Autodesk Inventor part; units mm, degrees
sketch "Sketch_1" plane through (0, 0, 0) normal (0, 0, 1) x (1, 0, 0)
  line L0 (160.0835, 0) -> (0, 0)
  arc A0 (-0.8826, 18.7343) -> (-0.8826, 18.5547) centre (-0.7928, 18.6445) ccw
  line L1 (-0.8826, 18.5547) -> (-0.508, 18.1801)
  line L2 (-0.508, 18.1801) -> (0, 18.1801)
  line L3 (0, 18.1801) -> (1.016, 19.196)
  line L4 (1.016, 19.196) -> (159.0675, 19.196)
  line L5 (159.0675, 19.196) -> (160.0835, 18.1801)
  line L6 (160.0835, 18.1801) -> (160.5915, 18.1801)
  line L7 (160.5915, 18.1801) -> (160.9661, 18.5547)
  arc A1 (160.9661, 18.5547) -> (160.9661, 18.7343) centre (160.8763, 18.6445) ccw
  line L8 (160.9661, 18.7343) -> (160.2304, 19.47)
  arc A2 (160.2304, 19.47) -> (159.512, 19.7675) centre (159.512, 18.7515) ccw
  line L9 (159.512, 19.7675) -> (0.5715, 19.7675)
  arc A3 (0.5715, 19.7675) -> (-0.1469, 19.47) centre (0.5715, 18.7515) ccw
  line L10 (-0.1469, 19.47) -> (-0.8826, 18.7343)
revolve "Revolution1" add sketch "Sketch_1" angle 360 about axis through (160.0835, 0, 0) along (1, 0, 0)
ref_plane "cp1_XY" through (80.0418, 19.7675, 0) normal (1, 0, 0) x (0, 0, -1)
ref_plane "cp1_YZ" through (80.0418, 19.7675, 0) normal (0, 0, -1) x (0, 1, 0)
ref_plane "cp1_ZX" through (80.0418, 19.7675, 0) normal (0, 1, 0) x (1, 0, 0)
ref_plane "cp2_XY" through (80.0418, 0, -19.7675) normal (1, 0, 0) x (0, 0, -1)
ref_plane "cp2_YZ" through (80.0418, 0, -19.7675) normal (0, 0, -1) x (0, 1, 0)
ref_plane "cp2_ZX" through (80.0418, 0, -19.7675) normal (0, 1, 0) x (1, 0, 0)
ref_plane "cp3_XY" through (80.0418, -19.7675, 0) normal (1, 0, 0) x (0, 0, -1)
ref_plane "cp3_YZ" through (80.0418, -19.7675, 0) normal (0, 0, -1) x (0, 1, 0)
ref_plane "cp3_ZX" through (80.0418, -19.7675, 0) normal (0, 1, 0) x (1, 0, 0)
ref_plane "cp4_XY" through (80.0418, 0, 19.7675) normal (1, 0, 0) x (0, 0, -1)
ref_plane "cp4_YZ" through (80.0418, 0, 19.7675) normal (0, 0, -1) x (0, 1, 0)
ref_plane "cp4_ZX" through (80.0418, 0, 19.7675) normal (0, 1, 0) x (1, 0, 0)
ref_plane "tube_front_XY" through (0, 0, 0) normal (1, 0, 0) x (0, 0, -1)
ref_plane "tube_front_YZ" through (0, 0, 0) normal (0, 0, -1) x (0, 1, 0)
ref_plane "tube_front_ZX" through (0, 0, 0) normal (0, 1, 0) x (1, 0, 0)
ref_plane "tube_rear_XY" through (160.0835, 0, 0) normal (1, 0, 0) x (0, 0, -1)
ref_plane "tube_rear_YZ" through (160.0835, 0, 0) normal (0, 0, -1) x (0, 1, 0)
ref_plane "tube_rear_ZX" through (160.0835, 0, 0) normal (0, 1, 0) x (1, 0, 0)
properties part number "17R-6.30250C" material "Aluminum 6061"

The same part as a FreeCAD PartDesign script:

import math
import FreeCAD as App
import Part
import Sketcher

V = App.Vector
Q = App.Units.Quantity

doc = App.newDocument("Part")
body = doc.addObject("PartDesign::Body", "Body")

# Sketch on XY plane
sketch1 = doc.addObject("Sketcher::SketchObject", "Sketch")
body.addObject(sketch1)
sketch1.AttachmentSupport = (doc.XY_Plane, [""])
sketch1.MapMode = "FlatFace"
sketch1.addGeometry(Part.LineSegment(V(-0.1469, 19.47, 0), V(-0.8826, 18.7343, 0)), False)
sketch1.addGeometry(Part.ArcOfCircle(Part.Circle(V(-0.7928, 18.6445, 0), V(0, 0, 1), 0.126996), math.radians(135), math.radians(225)), False)
sketch1.addGeometry(Part.LineSegment(V(-0.8826, 18.5547, 0), V(-0.508, 18.1801, 0)), False)
sketch1.addGeometry(Part.LineSegment(V(-0.508, 18.1801, 0), V(0, 18.1801, 0)), False)
sketch1.addGeometry(Part.LineSegment(V(0, 18.1801, 0), V(1.016, 19.196, 0)), False)
sketch1.addGeometry(Part.LineSegment(V(1.016, 19.196, 0), V(159.0675, 19.196, 0)), False)
sketch1.addGeometry(Part.LineSegment(V(159.0675, 19.196, 0), V(160.0835, 18.1801, 0)), False)
sketch1.addGeometry(Part.LineSegment(V(160.0835, 18.1801, 0), V(160.5915, 18.1801, 0)), False)
sketch1.addGeometry(Part.LineSegment(V(160.5915, 18.1801, 0), V(160.9661, 18.5547, 0)), False)
sketch1.addGeometry(Part.ArcOfCircle(Part.Circle(V(160.8763, 18.6445, 0), V(0, 0, 1), 0.126996), math.radians(-45), math.radians(45)), False)
sketch1.addGeometry(Part.LineSegment(V(160.9661, 18.7343, 0), V(160.2304, 19.47, 0)), False)
sketch1.addGeometry(Part.ArcOfCircle(Part.Circle(V(159.512, 18.7515, 0), V(0, 0, 1), 1.016042), math.radians(45.003987), math.radians(90)), False)
sketch1.addGeometry(Part.LineSegment(V(159.512, 19.7675, 0), V(0.5715, 19.7675, 0)), False)
sketch1.addGeometry(Part.ArcOfCircle(Part.Circle(V(0.5715, 18.7515, 0), V(0, 0, 1), 1.016), math.radians(90), math.radians(134.996013)), False)
sketch1.addConstraint(Sketcher.Constraint("Tangent", 0, 2, 1, 1))
sketch1.addConstraint(Sketcher.Constraint("Tangent", 1, 2, 2, 1))
sketch1.addConstraint(Sketcher.Constraint("Coincident", 2, 2, 3, 1))
sketch1.addConstraint(Sketcher.Constraint("Coincident", 3, 2, 4, 1))
sketch1.addConstraint(Sketcher.Constraint("Coincident", 4, 2, 5, 1))
sketch1.addConstraint(Sketcher.Constraint("Coincident", 5, 2, 6, 1))
sketch1.addConstraint(Sketcher.Constraint("Coincident", 6, 2, 7, 1))
sketch1.addConstraint(Sketcher.Constraint("Coincident", 7, 2, 8, 1))
sketch1.addConstraint(Sketcher.Constraint("Tangent", 8, 2, 9, 1))
sketch1.addConstraint(Sketcher.Constraint("Tangent", 9, 2, 10, 1))
sketch1.addConstraint(Sketcher.Constraint("Tangent", 10, 2, 11, 1))
sketch1.addConstraint(Sketcher.Constraint("Tangent", 11, 2, 12, 1))
sketch1.addConstraint(Sketcher.Constraint("Tangent", 12, 2, 13, 1))
sketch1.addConstraint(Sketcher.Constraint("Tangent", 13, 2, 0, 1))
sketch1.addConstraint(Sketcher.Constraint("Horizontal", 3))
sketch1.addConstraint(Sketcher.Constraint("Horizontal", 5))
sketch1.addConstraint(Sketcher.Constraint("Horizontal", 7))
sketch1.addConstraint(Sketcher.Constraint("Horizontal", 12))
sketch1.addConstraint(Sketcher.Constraint("Equal", 1, 9))
sketch1.addConstraint(Sketcher.Constraint("Equal", 11, 13))
sketch1.addConstraint(Sketcher.Constraint("PointOnObject", 3, 2, -2))
sketch1.addConstraint(Sketcher.Constraint("Perpendicular", 0, 2))
sketch1.addConstraint(Sketcher.Constraint("Perpendicular", 2, 4))
sketch1.addConstraint(Sketcher.Constraint("Perpendicular", 4, 6))
sketch1.addConstraint(Sketcher.Constraint("Perpendicular", 6, 8))
sketch1.addConstraint(Sketcher.Constraint("Perpendicular", 8, 10))
sketch1.addConstraint(Sketcher.Constraint("Horizontal", 1, 3, 9, 3))
sketch1.addConstraint(Sketcher.Constraint("Horizontal", 3, 2, 6, 2))
sketch1.addConstraint(Sketcher.Constraint("Horizontal", 1, 2, 8, 2))
sketch1.addConstraint(Sketcher.Constraint("Equal", 3, 7))
sketch1.addConstraint(Sketcher.Constraint("Radius", 11, Q("0.04 in")))
sketch1.addConstraint(Sketcher.Constraint("Radius", 1, Q("0.005 in")))
sketch1.addConstraint(Sketcher.Constraint("DistanceX", 3, 1, 3, 2, Q("0.02 in")))
sketch1.addConstraint(Sketcher.Constraint("DistanceX", 2, 2, 11, 3, Q("6.3 in")))
sketch1.addConstraint(Sketcher.Constraint("DistanceX", -1, 1, 4, 2, Q("0.04 in")))
sketch1.addConstraint(Sketcher.Constraint("DistanceX", 5, 1, 5, 2, Q("6.2225 in")))
sketch1.addConstraint(Sketcher.Constraint("DistanceY", 6, 2, 11, 2, Q("0.0625 in")))
sketch1.addConstraint(Sketcher.Constraint("DistanceY", -1, 1, 1, 2, Q("0.7305 in")))
revolution = doc.addObject("PartDesign::Revolution", "Revolution")
body.addObject(revolution)
revolution.Profile = sketch1
revolution.ReferenceAxis = (sketch1, ["H_Axis"])
revolution.Angle = 360

doc.recompute()
